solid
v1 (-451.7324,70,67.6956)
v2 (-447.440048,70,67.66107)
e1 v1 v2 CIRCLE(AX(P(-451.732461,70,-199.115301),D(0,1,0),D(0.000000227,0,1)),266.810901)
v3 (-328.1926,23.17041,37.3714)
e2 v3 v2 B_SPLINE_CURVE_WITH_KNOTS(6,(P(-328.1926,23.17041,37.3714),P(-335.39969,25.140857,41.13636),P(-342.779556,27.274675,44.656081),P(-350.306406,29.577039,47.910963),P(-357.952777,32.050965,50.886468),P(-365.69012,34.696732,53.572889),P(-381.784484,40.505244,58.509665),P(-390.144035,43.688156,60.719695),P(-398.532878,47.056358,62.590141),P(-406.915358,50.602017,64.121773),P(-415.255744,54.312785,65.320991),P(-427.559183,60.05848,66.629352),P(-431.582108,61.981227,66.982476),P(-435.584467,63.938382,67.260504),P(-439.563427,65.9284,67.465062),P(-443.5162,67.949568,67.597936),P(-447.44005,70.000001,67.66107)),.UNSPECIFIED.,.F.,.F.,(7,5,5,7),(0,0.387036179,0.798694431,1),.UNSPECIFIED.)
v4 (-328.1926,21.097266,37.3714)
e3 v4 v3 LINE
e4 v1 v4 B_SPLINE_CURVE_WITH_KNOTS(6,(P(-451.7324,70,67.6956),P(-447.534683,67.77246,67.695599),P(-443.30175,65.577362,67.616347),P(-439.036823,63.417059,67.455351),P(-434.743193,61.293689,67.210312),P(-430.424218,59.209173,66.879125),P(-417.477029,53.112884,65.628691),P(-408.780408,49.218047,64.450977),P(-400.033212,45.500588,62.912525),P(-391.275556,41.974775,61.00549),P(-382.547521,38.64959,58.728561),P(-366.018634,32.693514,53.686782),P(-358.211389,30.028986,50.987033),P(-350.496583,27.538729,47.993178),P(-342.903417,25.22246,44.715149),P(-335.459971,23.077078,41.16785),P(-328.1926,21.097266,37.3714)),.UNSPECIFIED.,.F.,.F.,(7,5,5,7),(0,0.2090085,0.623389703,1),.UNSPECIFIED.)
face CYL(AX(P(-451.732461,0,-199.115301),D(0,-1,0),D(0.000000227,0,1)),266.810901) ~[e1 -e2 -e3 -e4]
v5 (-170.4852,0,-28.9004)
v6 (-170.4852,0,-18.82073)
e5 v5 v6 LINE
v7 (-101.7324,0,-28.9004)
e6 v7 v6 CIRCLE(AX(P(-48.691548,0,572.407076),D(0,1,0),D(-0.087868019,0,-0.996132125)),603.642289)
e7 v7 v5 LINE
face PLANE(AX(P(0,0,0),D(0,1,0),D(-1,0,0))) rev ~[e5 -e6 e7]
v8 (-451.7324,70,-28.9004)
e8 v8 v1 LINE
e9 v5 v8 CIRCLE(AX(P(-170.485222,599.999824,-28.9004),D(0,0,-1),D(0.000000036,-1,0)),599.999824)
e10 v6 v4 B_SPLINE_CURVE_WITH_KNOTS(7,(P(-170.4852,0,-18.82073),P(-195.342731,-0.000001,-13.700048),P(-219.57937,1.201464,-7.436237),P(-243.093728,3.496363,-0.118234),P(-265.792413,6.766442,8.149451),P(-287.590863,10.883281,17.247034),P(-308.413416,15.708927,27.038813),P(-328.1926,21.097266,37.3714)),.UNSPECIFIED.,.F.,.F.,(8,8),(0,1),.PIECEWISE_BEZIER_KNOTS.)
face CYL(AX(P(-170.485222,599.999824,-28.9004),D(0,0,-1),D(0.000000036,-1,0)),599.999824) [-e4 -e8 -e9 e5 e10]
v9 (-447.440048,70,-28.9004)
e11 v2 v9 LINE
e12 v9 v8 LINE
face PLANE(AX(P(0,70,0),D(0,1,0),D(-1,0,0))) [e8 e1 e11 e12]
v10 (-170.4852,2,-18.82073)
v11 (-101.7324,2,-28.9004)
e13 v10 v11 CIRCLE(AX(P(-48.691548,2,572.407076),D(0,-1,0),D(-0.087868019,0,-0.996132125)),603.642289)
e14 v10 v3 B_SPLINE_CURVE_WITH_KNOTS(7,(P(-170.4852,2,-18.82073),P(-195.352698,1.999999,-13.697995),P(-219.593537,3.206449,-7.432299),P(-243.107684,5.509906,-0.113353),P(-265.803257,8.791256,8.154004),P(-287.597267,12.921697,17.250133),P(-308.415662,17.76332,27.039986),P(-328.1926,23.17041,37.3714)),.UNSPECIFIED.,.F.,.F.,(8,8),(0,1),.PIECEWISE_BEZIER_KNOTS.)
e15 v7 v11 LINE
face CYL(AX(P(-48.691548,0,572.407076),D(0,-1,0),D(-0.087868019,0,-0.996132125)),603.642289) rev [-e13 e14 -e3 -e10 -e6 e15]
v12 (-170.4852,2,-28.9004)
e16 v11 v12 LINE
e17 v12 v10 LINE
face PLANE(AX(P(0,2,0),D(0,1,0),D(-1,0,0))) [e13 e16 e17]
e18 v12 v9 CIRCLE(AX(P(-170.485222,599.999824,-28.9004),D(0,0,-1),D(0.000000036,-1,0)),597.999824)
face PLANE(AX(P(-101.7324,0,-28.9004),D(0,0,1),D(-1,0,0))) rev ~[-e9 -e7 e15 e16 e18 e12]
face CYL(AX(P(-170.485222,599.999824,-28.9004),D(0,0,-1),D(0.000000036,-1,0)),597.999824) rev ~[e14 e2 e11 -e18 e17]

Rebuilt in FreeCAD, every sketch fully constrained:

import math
import FreeCAD as App
import Part
import Sketcher
Q = App.Units.Quantity


def faces_at(feature, points):
    """Names of the faces that lie closest to the given points."""
    faces = feature.Shape.Faces
    near = lambda p: min(range(len(faces)), key=lambda i: faces[i].distToShape(Part.Vertex(*p))[0])
    return sorted({f"Face{near(p) + 1}" for p in points})

doc = App.newDocument("Part")
body = doc.addObject("PartDesign::Body", "Body")

sketch1 = body.newObject("Sketcher::SketchObject", "Sketch")
sketch1.AttachmentSupport = (doc.getObject("XZ_Plane"), [""])
sketch1.MapMode = "FlatFace"
sketch1.addGeometry(Part.ArcOfCircle(Part.Circle(App.Vector(-48.6916, 572.4068, 0), App.Vector(0, 0, 1), 603.642009), math.radians(-117.582441), math.radians(-95.040965)), False)
sketch1.addGeometry(Part.LineSegment(App.Vector(-101.7324, -28.9004, 0), App.Vector(-451.7324, -28.9004, 0)), False)
sketch1.addGeometry(Part.LineSegment(App.Vector(-451.7324, -28.9004, 0), App.Vector(-451.7324, 67.6956, 0)), False)
sketch1.addGeometry(Part.ArcOfCircle(Part.Circle(App.Vector(-451.7324, -199.1148, 0), App.Vector(0, 0, 1), 266.8104), math.radians(62.417546), math.radians(90)), False)
sketch1.addConstraint(Sketcher.Constraint("Coincident", 0, 2, 1, 1))
sketch1.addConstraint(Sketcher.Constraint("Coincident", 1, 2, 2, 1))
sketch1.addConstraint(Sketcher.Constraint("Coincident", 2, 2, 3, 2))
sketch1.addConstraint(Sketcher.Constraint("Tangent", 3, 1, 0, 1))
sketch1.addConstraint(Sketcher.Constraint("Horizontal", 1))
sketch1.addConstraint(Sketcher.Constraint("Vertical", 2))
sketch1.addConstraint(Sketcher.Constraint("Vertical", 3, 3, 1, 2))
sketch1.addConstraint(Sketcher.Constraint("DistanceX", 1, 2, 1, 1, Q("350 mm")))
sketch1.addConstraint(Sketcher.Constraint("Radius", 0, Q("603.642 mm")))
sketch1.addConstraint(Sketcher.Constraint("Radius", 3, Q("266.8104 mm")))
sketch1.addConstraint(Sketcher.Constraint("DistanceY", 2, 1, 2, 2, Q("96.596 mm")))
sketch1.addConstraint(Sketcher.Constraint("DistanceX", 0, 3, -1, 1, Q("48.6916 mm")))
sketch1.addConstraint(Sketcher.Constraint("DistanceY", -1, 1, 0, 3, Q("572.4068 mm")))
pad1 = body.newObject("PartDesign::Pad", "Pad")
pad1.Profile = sketch1
pad1.Length = 70
pad1.Reversed = True

sketch2 = body.newObject("Sketcher::SketchObject", "Sketch001")
sketch2.AttachmentSupport = (doc.getObject("XY_Plane"), [""])
sketch2.MapMode = "FlatFace"
sketch2.AttachmentOffset = App.Placement(App.Vector(0, 0, -28.9004), App.Rotation())
sketch2.addGeometry(Part.ArcOfCircle(Part.Circle(App.Vector(-170.4852, 600, 0), App.Vector(0, 0, 1), 600), math.radians(-117.952885), math.radians(-90)), False)
sketch2.addGeometry(Part.LineSegment(App.Vector(-170.4852, 0, 0), App.Vector(-451.7324, 0, 0)), False)
sketch2.addGeometry(Part.LineSegment(App.Vector(-451.7324, 0, 0), App.Vector(-451.7324, 70, 0)), False)
sketch2.addConstraint(Sketcher.Constraint("Tangent", 0, 2, 1, 1))
sketch2.addConstraint(Sketcher.Constraint("Coincident", 1, 2, 2, 1))
sketch2.addConstraint(Sketcher.Constraint("Coincident", 2, 2, 0, 1))
sketch2.addConstraint(Sketcher.Constraint("Horizontal", 1))
sketch2.addConstraint(Sketcher.Constraint("Vertical", 2))
sketch2.addConstraint(Sketcher.Constraint("PointOnObject", 0, 2, -1))
sketch2.addConstraint(Sketcher.Constraint("Radius", 0, Q("600 mm")))
sketch2.addConstraint(Sketcher.Constraint("DistanceY", 2, 1, 2, 2, Q("70 mm")))
sketch2.addConstraint(Sketcher.Constraint("DistanceX", 0, 3, -1, 1, Q("170.4852 mm")))
pocket1 = body.newObject("PartDesign::Pocket", "Pocket")
pocket1.Profile = sketch2
pocket1.Type = "ThroughAll"
pocket1.Reversed = True
doc.recompute()

thickness = body.newObject("PartDesign::Thickness", "Thickness")
thickness.Base = (pocket1, faces_at(pocket1, [
    (-334.06, 39.115, 40.345),
    (-359.207, 70, 10.329),
    (-150.686, 46.667, -22.556),
    (-325.356, 65.18, -28.9),
]))
thickness.Value = 2
thickness.Reversed = True
thickness.Join = "Intersection"

doc.recompute()
